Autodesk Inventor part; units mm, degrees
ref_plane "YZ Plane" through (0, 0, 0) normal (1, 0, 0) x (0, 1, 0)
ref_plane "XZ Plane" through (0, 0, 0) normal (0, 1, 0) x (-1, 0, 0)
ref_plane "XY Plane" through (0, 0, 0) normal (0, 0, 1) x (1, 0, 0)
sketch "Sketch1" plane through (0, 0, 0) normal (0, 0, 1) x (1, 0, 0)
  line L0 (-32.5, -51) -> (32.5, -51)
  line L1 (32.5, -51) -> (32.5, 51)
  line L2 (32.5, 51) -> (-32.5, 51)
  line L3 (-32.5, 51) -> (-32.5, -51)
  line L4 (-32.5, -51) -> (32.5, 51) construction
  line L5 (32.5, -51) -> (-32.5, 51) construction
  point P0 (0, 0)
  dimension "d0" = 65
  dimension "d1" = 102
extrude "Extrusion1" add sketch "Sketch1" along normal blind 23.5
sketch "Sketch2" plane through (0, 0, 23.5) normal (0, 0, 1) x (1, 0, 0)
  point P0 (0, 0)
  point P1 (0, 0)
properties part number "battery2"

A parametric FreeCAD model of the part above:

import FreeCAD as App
import Part
import Sketcher

V = App.Vector
Q = App.Units.Quantity


def add_polygon(sketch, points):
    """Adds a closed chain of lines whose ends are joined by coincident constraints."""
    first, n = sketch.GeometryCount, len(points)
    for a, b in zip(points, points[1:] + points[:1]):
        sketch.addGeometry(Part.LineSegment(App.Vector(*a, 0), App.Vector(*b, 0)), False)
    for i in range(n):
        sketch.addConstraint(Sketcher.Constraint("Coincident", first + i, 2, first + (i + 1) % n, 1))

doc = App.newDocument("Part")
params = doc.addObject("Spreadsheet::Sheet", "Params")
for row, (alias, value) in enumerate([
    ("sketch1_width", "65 mm"),
    ("sketch1_height", "102 mm"),
    ("pad1_length", "23.5 mm"),
], start=1):
    params.set(f"A{row}", alias)
    params.set(f"B{row}", "=" + value)
    params.setAlias(f"B{row}", alias)

body = doc.addObject("PartDesign::Body", "Body")

sketch1 = doc.addObject("Sketcher::SketchObject", "Sketch")
body.addObject(sketch1)
sketch1.AttachmentSupport = (doc.XY_Plane, [""])
sketch1.MapMode = "FlatFace"
add_polygon(sketch1, [(-32.5, 51), (-32.5, -51), (32.5, -51), (32.5, 51)])
sketch1.addConstraint(Sketcher.Constraint("Vertical", 0))
sketch1.addConstraint(Sketcher.Constraint("Horizontal", 1))
sketch1.addConstraint(Sketcher.Constraint("Vertical", 2))
sketch1.addConstraint(Sketcher.Constraint("Horizontal", 3))
sketch1.addConstraint(Sketcher.Constraint("Symmetric", 0, 2, 2, 2, -1, 1))
sketch1.addConstraint(Sketcher.Constraint("DistanceX", 1, 1, 1, 2, Q("65 mm")))
sketch1.addConstraint(Sketcher.Constraint("DistanceY", 0, 2, 0, 1, Q("102 mm")))
sketch1.setExpression("Constraints[9]", "Params.sketch1_width")
sketch1.setExpression("Constraints[10]", "Params.sketch1_height")
pad1 = doc.addObject("PartDesign::Pad", "Pad")
body.addObject(pad1)
pad1.Profile = sketch1
pad1.setExpression("Length", "Params.pad1_length")

doc.recompute()
